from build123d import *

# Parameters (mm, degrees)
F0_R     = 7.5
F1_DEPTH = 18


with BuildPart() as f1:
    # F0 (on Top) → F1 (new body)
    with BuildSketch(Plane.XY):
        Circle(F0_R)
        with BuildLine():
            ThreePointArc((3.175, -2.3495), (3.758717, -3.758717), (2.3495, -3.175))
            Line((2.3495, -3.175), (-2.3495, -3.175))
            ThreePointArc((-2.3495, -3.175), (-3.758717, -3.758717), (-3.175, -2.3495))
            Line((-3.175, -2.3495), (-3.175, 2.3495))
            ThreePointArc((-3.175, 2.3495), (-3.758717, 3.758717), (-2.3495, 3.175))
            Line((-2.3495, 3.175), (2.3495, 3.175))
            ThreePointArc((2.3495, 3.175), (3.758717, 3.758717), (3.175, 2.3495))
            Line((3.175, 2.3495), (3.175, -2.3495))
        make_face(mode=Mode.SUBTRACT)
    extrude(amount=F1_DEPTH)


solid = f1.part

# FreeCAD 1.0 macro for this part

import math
import FreeCAD as App
import Part
import Sketcher

V = App.Vector
Q = App.Units.Quantity

doc = App.newDocument("Part")
body = doc.addObject("PartDesign::Body", "Body")

# Sketch on XY plane
sketch1 = doc.addObject("Sketcher::SketchObject", "Sketch")
body.addObject(sketch1)
sketch1.AttachmentSupport = (doc.XY_Plane, [""])
sketch1.MapMode = "FlatFace"
sketch1.addGeometry([
    Part.Circle(V(0, 0, 0), V(0, 0, 1), 7.5),  # 0
    Part.LineSegment(V(3.175, 2.3495, 0), V(3.175, -2.3495, 0)),  # 1
    Part.ArcOfCircle(Part.Circle(V(3.175, -3.175, 0), V(0, 0, 1), 0.8255), math.radians(179.999986), math.radians(450.000014)),  # 2
    Part.LineSegment(V(2.3495, -3.175, 0), V(-2.3495, -3.175, 0)),  # 3
    Part.ArcOfCircle(Part.Circle(V(-3.175, -3.175, 0), V(0, 0, 1), 0.8255), math.radians(89.999986), math.radians(360.000014)),  # 4
    Part.LineSegment(V(-3.175, -2.3495, 0), V(-3.175, 2.3495, 0)),  # 5
    Part.ArcOfCircle(Part.Circle(V(-3.175, 3.175, 0), V(0, 0, 1), 0.8255), math.radians(-0.000014), math.radians(270.000014)),  # 6
    Part.LineSegment(V(-2.3495, 3.175, 0), V(2.3495, 3.175, 0)),  # 7
    Part.ArcOfCircle(Part.Circle(V(3.175, 3.175, 0), V(0, 0, 1), 0.8255), math.radians(-90.000014), math.radians(180.000014)),  # 8
], False)
sketch1.addConstraint([
    Sketcher.Constraint("Coincident", 1, 2, 2, 2),
    Sketcher.Constraint("Coincident", 2, 1, 3, 1),
    Sketcher.Constraint("Coincident", 3, 2, 4, 2),
    Sketcher.Constraint("Coincident", 4, 1, 5, 1),
    Sketcher.Constraint("Coincident", 5, 2, 6, 2),
    Sketcher.Constraint("Coincident", 6, 1, 7, 1),
    Sketcher.Constraint("Coincident", 7, 2, 8, 2),
    Sketcher.Constraint("Coincident", 8, 1, 1, 1),
    Sketcher.Constraint("Vertical", 1),
    Sketcher.Constraint("Horizontal", 3),
    Sketcher.Constraint("Vertical", 5),
    Sketcher.Constraint("Horizontal", 7),
    Sketcher.Constraint("Coincident", 0, 3, -1, 1),
    Sketcher.Constraint("Equal", 2, 4),
    Sketcher.Constraint("Equal", 4, 6),
    Sketcher.Constraint("Equal", 6, 8),
    Sketcher.Constraint("Symmetric", 2, 3, 6, 3, -1, 1),
    Sketcher.Constraint("Symmetric", 4, 3, 8, 3, -1, 1),
    Sketcher.Constraint("Symmetric", 2, 3, 4, 3, -2),
    Sketcher.Constraint("Horizontal", 4, 3, 2, 1),
    Sketcher.Constraint("Horizontal", 8, 3, 6, 1),
    Sketcher.Constraint("Vertical", 8, 3, 1, 2),
    Sketcher.Constraint("Vertical", 6, 3, 4, 1),
    Sketcher.Constraint("Equal", 7, 1),
    Sketcher.Constraint("Diameter", 0, Q("15 mm")),
    Sketcher.Constraint("Radius", 2, Q("0.8255 mm")),
    Sketcher.Constraint("DistanceX", 3, 2, 3, 1, Q("4.699 mm")),
])
pad1 = doc.addObject("PartDesign::Pad", "Pad")
body.addObject(pad1)
pad1.Profile = sketch1
pad1.Length = 18

doc.recompute()
